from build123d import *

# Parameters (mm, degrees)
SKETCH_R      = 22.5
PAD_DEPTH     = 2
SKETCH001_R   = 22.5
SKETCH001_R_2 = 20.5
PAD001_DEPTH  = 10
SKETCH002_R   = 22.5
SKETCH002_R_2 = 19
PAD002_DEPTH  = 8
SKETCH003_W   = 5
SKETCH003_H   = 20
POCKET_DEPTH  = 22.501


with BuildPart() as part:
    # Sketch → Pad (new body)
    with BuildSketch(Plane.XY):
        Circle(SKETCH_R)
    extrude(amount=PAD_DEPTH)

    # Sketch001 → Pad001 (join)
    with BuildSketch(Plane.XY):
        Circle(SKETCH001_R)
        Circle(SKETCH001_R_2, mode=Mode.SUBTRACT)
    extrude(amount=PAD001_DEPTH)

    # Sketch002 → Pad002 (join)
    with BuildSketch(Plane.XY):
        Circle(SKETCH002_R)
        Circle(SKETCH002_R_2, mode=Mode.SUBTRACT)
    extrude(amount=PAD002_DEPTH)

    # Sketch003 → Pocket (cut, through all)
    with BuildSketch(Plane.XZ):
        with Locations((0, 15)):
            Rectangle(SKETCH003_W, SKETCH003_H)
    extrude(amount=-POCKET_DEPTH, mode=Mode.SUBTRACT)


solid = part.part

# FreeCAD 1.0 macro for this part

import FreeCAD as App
import Part
import Sketcher
Q = App.Units.Quantity


def add_polygon(sketch, points):
    """Adds a closed chain of lines whose ends are joined by coincident constraints."""
    first, n = sketch.GeometryCount, len(points)
    for a, b in zip(points, points[1:] + points[:1]):
        sketch.addGeometry(Part.LineSegment(App.Vector(*a, 0), App.Vector(*b, 0)), False)
    for i in range(n):
        sketch.addConstraint(Sketcher.Constraint("Coincident", first + i, 2, first + (i + 1) % n, 1))

doc = App.newDocument("Part")
body = doc.addObject("PartDesign::Body", "Body")

# Sketch on XY plane
sketch1 = body.newObject("Sketcher::SketchObject", "Sketch")
sketch1.AttachmentSupport = (doc.getObject("XY_Plane"), [""])
sketch1.MapMode = "FlatFace"
sketch1.addGeometry(Part.Circle(App.Vector(0, 0, 0), App.Vector(0, 0, 1), 22.5), False)
sketch1.addConstraint(Sketcher.Constraint("Coincident", 0, 3, -1, 1))
sketch1.addConstraint(Sketcher.Constraint("Diameter", 0, Q("45 mm")))
pad1 = body.newObject("PartDesign::Pad", "Pad")
pad1.Profile = sketch1
pad1.Length = 2

# Sketch on XY plane
sketch2 = body.newObject("Sketcher::SketchObject", "Sketch001")
sketch2.AttachmentSupport = (doc.getObject("XY_Plane"), [""])
sketch2.MapMode = "FlatFace"
sketch2.addGeometry(Part.Circle(App.Vector(0, 0, 0), App.Vector(0, 0, 1), 22.5), False)
sketch2.addGeometry(Part.Circle(App.Vector(0, 0, 0), App.Vector(0, 0, 1), 20.5), False)
sketch2.addConstraint(Sketcher.Constraint("Coincident", 0, 3, -1, 1))
sketch2.addConstraint(Sketcher.Constraint("Coincident", 1, 3, -1, 1))
sketch2.addConstraint(Sketcher.Constraint("Diameter", 0, Q("45 mm")))
sketch2.addConstraint(Sketcher.Constraint("Diameter", 1, Q("41 mm")))
pad2 = body.newObject("PartDesign::Pad", "Pad001")
pad2.Profile = sketch2
pad2.Length = 10

# Sketch on XY plane
sketch3 = body.newObject("Sketcher::SketchObject", "Sketch002")
sketch3.AttachmentSupport = (doc.getObject("XY_Plane"), [""])
sketch3.MapMode = "FlatFace"
sketch3.addGeometry(Part.Circle(App.Vector(0, 0, 0), App.Vector(0, 0, 1), 22.5), False)
sketch3.addGeometry(Part.Circle(App.Vector(0, 0, 0), App.Vector(0, 0, 1), 19), False)
sketch3.addConstraint(Sketcher.Constraint("Coincident", 0, 3, -1, 1))
sketch3.addConstraint(Sketcher.Constraint("Coincident", 1, 3, -1, 1))
sketch3.addConstraint(Sketcher.Constraint("Diameter", 0, Q("45 mm")))
sketch3.addConstraint(Sketcher.Constraint("Diameter", 1, Q("38 mm")))
pad3 = body.newObject("PartDesign::Pad", "Pad002")
pad3.Profile = sketch3
pad3.Length = 8

# Sketch on XZ plane
sketch4 = body.newObject("Sketcher::SketchObject", "Sketch003")
sketch4.AttachmentSupport = (doc.getObject("XZ_Plane"), [""])
sketch4.MapMode = "FlatFace"
add_polygon(sketch4, [(-2.5, 25), (-2.5, 5), (2.5, 5), (2.5, 25)])  # lines 0-3
sketch4.addConstraint(Sketcher.Constraint("Vertical", 0))
sketch4.addConstraint(Sketcher.Constraint("Horizontal", 1))
sketch4.addConstraint(Sketcher.Constraint("Vertical", 2))
sketch4.addConstraint(Sketcher.Constraint("Horizontal", 3))
sketch4.addConstraint(Sketcher.Constraint("DistanceX", 1, 1, 1, 2, Q("5 mm")))
sketch4.addConstraint(Sketcher.Constraint("DistanceY", 0, 2, 0, 1, Q("20 mm")))
sketch4.addConstraint(Sketcher.Constraint("DistanceY", -1, 1, 0, 2, Q("5 mm")))
sketch4.addConstraint(Sketcher.Constraint("DistanceX", 0, 2, -1, 1, Q("2.5 mm")))
pocket1 = body.newObject("PartDesign::Pocket", "Pocket")
pocket1.Profile = sketch4
pocket1.Type = "ThroughAll"

doc.recompute()
